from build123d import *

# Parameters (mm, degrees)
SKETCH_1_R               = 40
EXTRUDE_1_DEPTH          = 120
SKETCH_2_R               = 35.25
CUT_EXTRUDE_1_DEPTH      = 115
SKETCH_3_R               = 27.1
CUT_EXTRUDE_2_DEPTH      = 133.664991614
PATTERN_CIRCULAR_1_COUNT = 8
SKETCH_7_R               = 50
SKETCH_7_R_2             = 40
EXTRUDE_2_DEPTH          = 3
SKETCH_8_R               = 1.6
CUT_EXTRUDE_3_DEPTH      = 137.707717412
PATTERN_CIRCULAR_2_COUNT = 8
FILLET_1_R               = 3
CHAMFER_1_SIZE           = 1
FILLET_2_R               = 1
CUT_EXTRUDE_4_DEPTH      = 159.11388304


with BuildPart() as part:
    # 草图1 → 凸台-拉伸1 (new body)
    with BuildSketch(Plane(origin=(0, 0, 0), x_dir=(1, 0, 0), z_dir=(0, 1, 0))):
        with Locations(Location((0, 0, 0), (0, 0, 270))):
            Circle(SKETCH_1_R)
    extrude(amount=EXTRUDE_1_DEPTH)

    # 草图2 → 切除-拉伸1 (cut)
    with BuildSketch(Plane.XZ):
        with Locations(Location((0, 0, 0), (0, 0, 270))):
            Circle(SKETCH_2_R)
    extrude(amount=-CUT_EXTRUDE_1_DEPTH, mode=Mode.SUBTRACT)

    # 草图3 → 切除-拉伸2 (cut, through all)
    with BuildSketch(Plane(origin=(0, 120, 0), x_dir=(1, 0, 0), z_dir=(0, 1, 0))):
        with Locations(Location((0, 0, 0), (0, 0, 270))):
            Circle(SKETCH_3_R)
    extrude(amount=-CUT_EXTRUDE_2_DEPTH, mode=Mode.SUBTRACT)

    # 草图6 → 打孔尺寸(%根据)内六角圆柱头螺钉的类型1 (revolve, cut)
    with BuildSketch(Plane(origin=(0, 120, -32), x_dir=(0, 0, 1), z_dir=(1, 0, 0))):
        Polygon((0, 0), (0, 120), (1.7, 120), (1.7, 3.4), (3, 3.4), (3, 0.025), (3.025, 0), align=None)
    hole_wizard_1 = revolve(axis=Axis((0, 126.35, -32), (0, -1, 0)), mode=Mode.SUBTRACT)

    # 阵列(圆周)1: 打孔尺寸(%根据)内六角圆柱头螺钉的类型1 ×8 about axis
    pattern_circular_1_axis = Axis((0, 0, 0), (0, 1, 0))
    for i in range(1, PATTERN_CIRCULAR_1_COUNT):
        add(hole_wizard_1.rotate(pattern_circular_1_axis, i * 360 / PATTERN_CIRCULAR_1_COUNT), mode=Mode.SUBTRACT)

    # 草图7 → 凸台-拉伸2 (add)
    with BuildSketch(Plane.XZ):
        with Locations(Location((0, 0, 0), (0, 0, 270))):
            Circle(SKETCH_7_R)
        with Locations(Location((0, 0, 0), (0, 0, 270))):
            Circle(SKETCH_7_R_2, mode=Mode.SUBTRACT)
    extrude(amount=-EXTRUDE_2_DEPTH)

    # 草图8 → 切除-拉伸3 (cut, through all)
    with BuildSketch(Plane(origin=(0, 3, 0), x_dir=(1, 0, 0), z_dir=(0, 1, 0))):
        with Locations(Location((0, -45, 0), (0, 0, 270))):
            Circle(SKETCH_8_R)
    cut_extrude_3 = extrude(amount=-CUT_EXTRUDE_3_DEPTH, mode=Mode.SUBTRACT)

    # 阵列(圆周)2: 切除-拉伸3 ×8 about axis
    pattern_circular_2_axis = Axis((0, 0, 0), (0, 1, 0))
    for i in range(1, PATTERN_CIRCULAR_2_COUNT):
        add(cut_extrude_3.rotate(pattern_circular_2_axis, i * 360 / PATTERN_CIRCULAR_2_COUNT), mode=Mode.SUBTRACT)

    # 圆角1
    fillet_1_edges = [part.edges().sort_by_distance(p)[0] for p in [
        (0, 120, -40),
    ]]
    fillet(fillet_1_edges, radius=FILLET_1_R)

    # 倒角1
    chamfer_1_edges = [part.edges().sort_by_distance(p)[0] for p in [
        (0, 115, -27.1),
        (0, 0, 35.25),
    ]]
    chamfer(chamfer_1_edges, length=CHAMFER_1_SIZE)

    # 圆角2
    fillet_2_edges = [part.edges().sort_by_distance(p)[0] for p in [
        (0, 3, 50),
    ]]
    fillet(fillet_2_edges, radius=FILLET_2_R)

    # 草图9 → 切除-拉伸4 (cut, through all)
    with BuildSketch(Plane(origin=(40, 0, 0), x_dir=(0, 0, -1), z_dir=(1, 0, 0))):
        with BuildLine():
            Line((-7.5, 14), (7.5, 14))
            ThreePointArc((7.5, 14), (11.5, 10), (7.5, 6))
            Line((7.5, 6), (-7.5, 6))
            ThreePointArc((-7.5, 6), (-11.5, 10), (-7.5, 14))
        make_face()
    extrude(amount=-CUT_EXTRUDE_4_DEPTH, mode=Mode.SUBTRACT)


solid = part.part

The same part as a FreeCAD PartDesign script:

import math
import FreeCAD as App
import Part
import Sketcher
from FreeCAD import Vector
Q = App.Units.Quantity


def edges_at(feature, points):
    """Names of the edges that pass closest to the given points."""
    edges = feature.Shape.Edges
    near = lambda p: min(range(len(edges)), key=lambda i: edges[i].distToShape(Part.Vertex(*p))[0])
    return sorted({f"Edge{near(p) + 1}" for p in points})


def add_polygon(sketch, points):
    """Adds a closed chain of lines whose ends are joined by coincident constraints."""
    first, n = sketch.GeometryCount, len(points)
    for a, b in zip(points, points[1:] + points[:1]):
        sketch.addGeometry(Part.LineSegment(App.Vector(*a, 0), App.Vector(*b, 0)), False)
    for i in range(n):
        sketch.addConstraint(Sketcher.Constraint("Coincident", first + i, 2, first + (i + 1) % n, 1))

doc = App.newDocument("Part")
body = doc.addObject("PartDesign::Body", "Body")

# Sketch on XZ plane
sketch1 = body.newObject("Sketcher::SketchObject", "Sketch")
sketch1.AttachmentSupport = (doc.getObject("XZ_Plane"), [""])
sketch1.MapMode = "FlatFace"
sketch1.addGeometry(Part.Circle(Vector(0, 0, 0), Vector(0, 0, 1), 40), False)
sketch1.addConstraint([
    Sketcher.Constraint("Coincident", 0, 3, -1, 1),
    Sketcher.Constraint("Diameter", 0, Q("80 mm")),
])
pad1 = body.newObject("PartDesign::Pad", "Pad")
pad1.Profile = sketch1
pad1.Length = 120
pad1.Reversed = True

# Sketch on XZ plane
sketch2 = body.newObject("Sketcher::SketchObject", "Sketch001")
sketch2.AttachmentSupport = (doc.getObject("XZ_Plane"), [""])
sketch2.MapMode = "FlatFace"
sketch2.addGeometry(Part.Circle(Vector(0, 0, 0), Vector(0, 0, 1), 35), False)
sketch2.addConstraint([
    Sketcher.Constraint("Coincident", 0, 3, -1, 1),
    Sketcher.Constraint("Diameter", 0, Q("70.5 mm")),
])
pocket1 = body.newObject("PartDesign::Pocket", "Pocket")
pocket1.Profile = sketch2
pocket1.Length = 115

# Sketch on XZ plane
sketch3 = body.newObject("Sketcher::SketchObject", "Sketch002")
sketch3.AttachmentSupport = (doc.getObject("XZ_Plane"), [""])
sketch3.MapMode = "FlatFace"
sketch3.AttachmentOffset = App.Placement(Vector(0, 0, -120), App.Rotation())
sketch3.addGeometry(Part.Circle(Vector(0, 0, 0), Vector(0, 0, 1), 27), False)
sketch3.addConstraint([
    Sketcher.Constraint("Coincident", 0, 3, -1, 1),
    Sketcher.Constraint("Diameter", 0, Q("54.2 mm")),
])
pocket2 = body.newObject("PartDesign::Pocket", "Pocket001")
pocket2.Profile = sketch3
pocket2.Type = "ThroughAll"
pocket2.Reversed = True

# Sketch on YZ plane
sketch4 = body.newObject("Sketcher::SketchObject", "Sketch003")
sketch4.AttachmentSupport = (doc.getObject("YZ_Plane"), [""])
sketch4.MapMode = "FlatFace"
add_polygon(sketch4, [(0, -32), (120, -32), (120, -28.975), (119.975, -29), (116.6, -29), (116.6, -30.3), (0, -30.3)])  # lines 0-6
sketch4.addGeometry(Part.LineSegment(Vector(120, -32, 0), Vector(0, -32, 0)), True)  # axis
sketch4.addConstraint([
    Sketcher.Constraint("Horizontal", 0),
    Sketcher.Constraint("Vertical", 1),
    Sketcher.Constraint("Horizontal", 3),
    Sketcher.Constraint("Vertical", 4),
    Sketcher.Constraint("Horizontal", 5),
    Sketcher.Constraint("Vertical", 6),
    Sketcher.Constraint("Horizontal", 7),
    Sketcher.Constraint("Coincident", 7, 1, 0, 2),
    Sketcher.Constraint("PointOnObject", 5, 2, -2),
    Sketcher.Constraint("PointOnObject", 7, 2, -2),
    Sketcher.Constraint("DistanceX", 0, 1, 0, 2, Q("120 mm")),
    Sketcher.Constraint("Angle", 2, Q("-135 deg")),
    Sketcher.Constraint("DistanceX", 5, 2, 5, 1, Q("116.6 mm")),
    Sketcher.Constraint("DistanceY", 4, 2, 4, 1, Q("1.3 mm")),
    Sketcher.Constraint("DistanceY", 6, 2, 6, 1, Q("1.7 mm")),
    Sketcher.Constraint("DistanceY", 0, 2, -1, 1, Q("32 mm")),
    Sketcher.Constraint("DistanceX", 3, 2, 3, 1, Q("3.375 mm")),
])
groove = body.newObject("PartDesign::Groove", "Groove")
groove.Profile = sketch4
groove.ReferenceAxis = (sketch4, ["Axis0"])
groove.Angle = 360
doc.recompute()

polarpattern = body.newObject("PartDesign::PolarPattern", "PolarPattern")
polarpattern.Originals = [groove]
polarpattern.Axis = (doc.getObject("Y_Axis"), [""])
polarpattern.Angle = 360
polarpattern.Occurrences = 8
body.Tip = polarpattern

# Sketch on XZ plane
sketch5 = body.newObject("Sketcher::SketchObject", "Sketch004")
sketch5.AttachmentSupport = (doc.getObject("XZ_Plane"), [""])
sketch5.MapMode = "FlatFace"
sketch5.addGeometry([
    Part.Circle(Vector(0, 0, 0), Vector(0, 0, 1), 50),
    Part.Circle(Vector(0, 0, 0), Vector(0, 0, 1), 40),
], False)
sketch5.addConstraint([
    Sketcher.Constraint("Coincident", 0, 3, -1, 1),
    Sketcher.Constraint("Coincident", 1, 3, -1, 1),
    Sketcher.Constraint("Diameter", 0, Q("100 mm")),
    Sketcher.Constraint("Diameter", 1, Q("80 mm")),
])
pad2 = body.newObject("PartDesign::Pad", "Pad001")
pad2.Profile = sketch5
pad2.Length = 3
pad2.Reversed = True

# Sketch on XZ plane
sketch6 = body.newObject("Sketcher::SketchObject", "Sketch005")
sketch6.AttachmentSupport = (doc.getObject("XZ_Plane"), [""])
sketch6.MapMode = "FlatFace"
sketch6.AttachmentOffset = App.Placement(Vector(0, 0, -3), App.Rotation())
sketch6.addGeometry(Part.Circle(Vector(0, 45, 0), Vector(0, 0, 1), 1.6), False)
sketch6.addConstraint([
    Sketcher.Constraint("PointOnObject", 0, 3, -2),
    Sketcher.Constraint("Diameter", 0, Q("3.2 mm")),
    Sketcher.Constraint("DistanceY", -1, 1, 0, 3, Q("45 mm")),
])
pocket3 = body.newObject("PartDesign::Pocket", "Pocket002")
pocket3.Profile = sketch6
pocket3.Type = "ThroughAll"
pocket3.Reversed = True
doc.recompute()

polarpattern2 = body.newObject("PartDesign::PolarPattern", "PolarPattern001")
polarpattern2.Originals = [pocket3]
polarpattern2.Axis = (doc.getObject("Y_Axis"), [""])
polarpattern2.Angle = 360
polarpattern2.Occurrences = 8
body.Tip = polarpattern2
doc.recompute()

fillet = body.newObject("PartDesign::Fillet", "Fillet")
fillet.Base = (polarpattern2, edges_at(polarpattern2, [(0, 120, -40)]))
fillet.Radius = 3
doc.recompute()

chamfer = body.newObject("PartDesign::Chamfer", "Chamfer")
chamfer.Base = (fillet, edges_at(fillet, [(0, 115, -27.1), (0, 0, 35.25)]))
chamfer.Size = 1
doc.recompute()

fillet2 = body.newObject("PartDesign::Fillet", "Fillet001")
fillet2.Base = (chamfer, edges_at(chamfer, [(0, 3, 50)]))
fillet2.Radius = 1

# Sketch on YZ plane
sketch7 = body.newObject("Sketcher::SketchObject", "Sketch006")
sketch7.AttachmentSupport = (doc.getObject("YZ_Plane"), [""])
sketch7.MapMode = "FlatFace"
sketch7.AttachmentOffset = App.Placement(Vector(0, 0, 40), App.Rotation())
sketch7.addGeometry([
    Part.LineSegment(Vector(14, -7.5, 0), Vector(14, 7.5, 0)),
    Part.ArcOfCircle(Part.Circle(Vector(10, 7.5, 0), Vector(0, 0, 1), 4), math.radians(0), math.radians(180)),
    Part.LineSegment(Vector(6, 7.5, 0), Vector(6, -7.5, 0)),
    Part.ArcOfCircle(Part.Circle(Vector(10, -7.5, 0), Vector(0, 0, 1), 4), math.radians(180), math.radians(360)),
], False)
sketch7.addConstraint([
    Sketcher.Constraint("Tangent", 0, 2, 1, 1),
    Sketcher.Constraint("Tangent", 1, 2, 2, 1),
    Sketcher.Constraint("Tangent", 2, 2, 3, 1),
    Sketcher.Constraint("Tangent", 3, 2, 0, 1),
    Sketcher.Constraint("Vertical", 0),
    Sketcher.Constraint("Vertical", 2),
    Sketcher.Constraint("Radius", 1, Q("4 mm")),
    Sketcher.Constraint("DistanceY", 0, 1, 0, 2, Q("15 mm")),
    Sketcher.Constraint("DistanceX", -1, 1, 1, 3, Q("10 mm")),
    Sketcher.Constraint("DistanceY", -1, 1, 1, 3, Q("7.5 mm")),
])
pocket4 = body.newObject("PartDesign::Pocket", "Pocket003")
pocket4.Profile = sketch7
pocket4.Type = "ThroughAll"

doc.recompute()
